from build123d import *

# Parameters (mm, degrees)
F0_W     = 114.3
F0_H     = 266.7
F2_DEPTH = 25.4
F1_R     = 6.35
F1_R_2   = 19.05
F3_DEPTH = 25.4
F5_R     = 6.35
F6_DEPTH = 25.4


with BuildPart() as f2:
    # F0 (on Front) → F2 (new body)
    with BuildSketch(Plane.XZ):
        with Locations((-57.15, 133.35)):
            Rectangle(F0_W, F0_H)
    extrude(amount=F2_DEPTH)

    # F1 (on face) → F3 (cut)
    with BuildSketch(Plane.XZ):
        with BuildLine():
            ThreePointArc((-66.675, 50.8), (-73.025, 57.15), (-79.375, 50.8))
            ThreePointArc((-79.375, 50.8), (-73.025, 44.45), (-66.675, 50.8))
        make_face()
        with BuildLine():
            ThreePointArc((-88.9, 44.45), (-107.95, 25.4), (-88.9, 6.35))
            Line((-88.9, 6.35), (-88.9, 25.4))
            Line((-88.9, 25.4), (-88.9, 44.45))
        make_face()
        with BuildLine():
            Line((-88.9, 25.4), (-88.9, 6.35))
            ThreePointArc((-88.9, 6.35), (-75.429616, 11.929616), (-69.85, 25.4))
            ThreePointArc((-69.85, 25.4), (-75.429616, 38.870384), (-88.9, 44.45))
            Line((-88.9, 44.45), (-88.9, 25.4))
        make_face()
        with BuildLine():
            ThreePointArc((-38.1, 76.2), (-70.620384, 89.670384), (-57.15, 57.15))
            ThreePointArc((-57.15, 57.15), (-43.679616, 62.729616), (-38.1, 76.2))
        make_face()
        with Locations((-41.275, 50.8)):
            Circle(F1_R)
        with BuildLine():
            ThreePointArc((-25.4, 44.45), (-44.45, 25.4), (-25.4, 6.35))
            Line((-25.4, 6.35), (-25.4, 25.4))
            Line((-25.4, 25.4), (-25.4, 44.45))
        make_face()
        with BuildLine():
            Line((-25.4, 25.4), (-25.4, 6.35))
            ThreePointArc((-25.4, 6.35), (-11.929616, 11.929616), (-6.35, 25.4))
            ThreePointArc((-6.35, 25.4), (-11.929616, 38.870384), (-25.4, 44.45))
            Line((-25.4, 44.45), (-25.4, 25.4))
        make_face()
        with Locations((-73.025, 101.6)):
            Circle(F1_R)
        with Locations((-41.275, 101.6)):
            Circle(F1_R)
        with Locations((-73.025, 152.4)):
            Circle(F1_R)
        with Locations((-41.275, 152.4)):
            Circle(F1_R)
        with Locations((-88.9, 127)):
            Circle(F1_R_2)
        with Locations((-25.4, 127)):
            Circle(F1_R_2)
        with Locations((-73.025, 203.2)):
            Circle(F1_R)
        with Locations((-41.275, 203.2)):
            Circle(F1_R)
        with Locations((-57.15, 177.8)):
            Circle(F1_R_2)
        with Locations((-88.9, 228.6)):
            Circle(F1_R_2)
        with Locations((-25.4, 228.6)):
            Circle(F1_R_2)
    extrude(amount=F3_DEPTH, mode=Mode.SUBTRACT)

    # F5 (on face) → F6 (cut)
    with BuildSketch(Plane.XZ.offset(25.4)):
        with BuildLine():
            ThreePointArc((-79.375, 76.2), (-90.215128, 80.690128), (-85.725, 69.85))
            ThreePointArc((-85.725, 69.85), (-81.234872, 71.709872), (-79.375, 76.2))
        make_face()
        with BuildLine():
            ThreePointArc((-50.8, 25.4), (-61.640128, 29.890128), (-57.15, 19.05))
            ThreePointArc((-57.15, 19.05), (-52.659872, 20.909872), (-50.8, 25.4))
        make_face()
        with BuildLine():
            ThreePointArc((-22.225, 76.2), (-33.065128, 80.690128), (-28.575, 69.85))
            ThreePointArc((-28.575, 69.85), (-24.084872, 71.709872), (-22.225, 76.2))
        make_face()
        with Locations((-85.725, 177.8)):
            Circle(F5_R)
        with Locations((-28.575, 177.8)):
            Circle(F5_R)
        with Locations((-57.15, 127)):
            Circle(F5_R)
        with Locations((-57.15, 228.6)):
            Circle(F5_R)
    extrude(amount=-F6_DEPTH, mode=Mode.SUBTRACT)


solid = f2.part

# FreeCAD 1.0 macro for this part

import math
import FreeCAD as App
import Part
import Sketcher
from FreeCAD import Vector
Q = App.Units.Quantity

doc = App.newDocument("Part")
body = doc.addObject("PartDesign::Body", "Body")

sketch1 = body.newObject("Sketcher::SketchObject", "Sketch")
sketch1.AttachmentSupport = (doc.getObject("XZ_Plane"), [""])
sketch1.MapMode = "FlatFace"
sketch1.addGeometry(Part.LineSegment(Vector(-114.3, 266.7, 0), Vector(-114.3, 0, 0)), False)
sketch1.addGeometry(Part.LineSegment(Vector(-114.3, 0, 0), Vector(0, 0, 0)), False)
sketch1.addGeometry(Part.LineSegment(Vector(0, 0, 0), Vector(0, 266.7, 0)), False)
sketch1.addGeometry(Part.LineSegment(Vector(0, 266.7, 0), Vector(-114.3, 266.7, 0)), False)
sketch1.addConstraint(Sketcher.Constraint("Coincident", 0, 2, 1, 1))
sketch1.addConstraint(Sketcher.Constraint("Coincident", 1, 2, 2, 1))
sketch1.addConstraint(Sketcher.Constraint("Coincident", 2, 2, 3, 1))
sketch1.addConstraint(Sketcher.Constraint("Coincident", 3, 2, 0, 1))
sketch1.addConstraint(Sketcher.Constraint("Vertical", 0))
sketch1.addConstraint(Sketcher.Constraint("Horizontal", 1))
sketch1.addConstraint(Sketcher.Constraint("Vertical", 2))
sketch1.addConstraint(Sketcher.Constraint("Horizontal", 3))
sketch1.addConstraint(Sketcher.Constraint("Coincident", 1, 2, -1, 1))
sketch1.addConstraint(Sketcher.Constraint("DistanceX", 1, 1, 1, 2, Q("4.5 in")))
sketch1.addConstraint(Sketcher.Constraint("DistanceY", 0, 2, 0, 1, Q("10.5 in")))
pad1 = body.newObject("PartDesign::Pad", "Pad")
pad1.Profile = sketch1
pad1.Length = Q("1 in")

sketch2 = body.newObject("Sketcher::SketchObject", "Sketch001")
sketch2.AttachmentSupport = (doc.getObject("XZ_Plane"), [""])
sketch2.MapMode = "FlatFace"
sketch2.addGeometry(Part.Circle(Vector(-73.025, 50.8, 0), Vector(0, 0, 1), 6.35), False)
sketch2.addGeometry(Part.ArcOfCircle(Part.Circle(Vector(-88.9, 25.4, 0), Vector(0, 0, 1), 19.05), math.radians(90), math.radians(270)), False)
sketch2.addGeometry(Part.ArcOfCircle(Part.Circle(Vector(-88.900001, 25.400001, 0), Vector(0, 0, 1), 19.050001), math.radians(-89.999998), math.radians(-0.000002)), False)
sketch2.addGeometry(Part.ArcOfCircle(Part.Circle(Vector(-88.900001, 25.399999, 0), Vector(0, 0, 1), 19.050001), math.radians(0.000002), math.radians(89.999998)), False)
sketch2.addGeometry(Part.ArcOfCircle(Part.Circle(Vector(-57.15, 76.2, 0), Vector(0, 0, 1), 19.05), math.radians(0), math.radians(270)), False)
sketch2.addGeometry(Part.ArcOfCircle(Part.Circle(Vector(-57.150001, 76.200001, 0), Vector(0, 0, 1), 19.050001), math.radians(-89.999998), math.radians(-0.000002)), False)
sketch2.addGeometry(Part.Circle(Vector(-41.275, 50.8, 0), Vector(0, 0, 1), 6.35), False)
sketch2.addGeometry(Part.ArcOfCircle(Part.Circle(Vector(-25.4, 25.4, 0), Vector(0, 0, 1), 19.05), math.radians(90), math.radians(270)), False)
sketch2.addGeometry(Part.ArcOfCircle(Part.Circle(Vector(-25.400001, 25.400001, 0), Vector(0, 0, 1), 19.050001), math.radians(-89.999998), math.radians(-0.000002)), False)
sketch2.addGeometry(Part.ArcOfCircle(Part.Circle(Vector(-25.400001, 25.399999, 0), Vector(0, 0, 1), 19.050001), math.radians(0.000002), math.radians(89.999998)), False)
sketch2.addGeometry(Part.Circle(Vector(-73.025, 101.6, 0), Vector(0, 0, 1), 6.35), False)
sketch2.addGeometry(Part.Circle(Vector(-41.275, 101.6, 0), Vector(0, 0, 1), 6.35), False)
sketch2.addGeometry(Part.Circle(Vector(-73.025, 152.4, 0), Vector(0, 0, 1), 6.35), False)
sketch2.addGeometry(Part.Circle(Vector(-41.275, 152.4, 0), Vector(0, 0, 1), 6.35), False)
sketch2.addGeometry(Part.Circle(Vector(-88.9, 127, 0), Vector(0, 0, 1), 19.05), False)
sketch2.addGeometry(Part.Circle(Vector(-25.4, 127, 0), Vector(0, 0, 1), 19.05), False)
sketch2.addGeometry(Part.Circle(Vector(-73.025, 203.2, 0), Vector(0, 0, 1), 6.35), False)
sketch2.addGeometry(Part.Circle(Vector(-41.275, 203.2, 0), Vector(0, 0, 1), 6.35), False)
sketch2.addGeometry(Part.Circle(Vector(-57.15, 177.8, 0), Vector(0, 0, 1), 19.05), False)
sketch2.addGeometry(Part.Circle(Vector(-88.9, 228.6, 0), Vector(0, 0, 1), 19.05), False)
sketch2.addGeometry(Part.Circle(Vector(-25.4, 228.6, 0), Vector(0, 0, 1), 19.05), False)
sketch2.addConstraint(Sketcher.Constraint("Tangent", 1, 2, 2, 1))
sketch2.addConstraint(Sketcher.Constraint("Tangent", 2, 2, 3, 1))
sketch2.addConstraint(Sketcher.Constraint("Tangent", 3, 2, 1, 1))
sketch2.addConstraint(Sketcher.Constraint("Tangent", 4, 1, 5, 2))
sketch2.addConstraint(Sketcher.Constraint("Coincident", 5, 1, 4, 2))
sketch2.addConstraint(Sketcher.Constraint("Tangent", 7, 2, 8, 1))
sketch2.addConstraint(Sketcher.Constraint("Tangent", 8, 2, 9, 1))
sketch2.addConstraint(Sketcher.Constraint("Tangent", 9, 2, 7, 1))
sketch2.addConstraint(Sketcher.Constraint("Equal", 3, 4))
sketch2.addConstraint(Sketcher.Constraint("Equal", 0, 6))
sketch2.addConstraint(Sketcher.Constraint("Equal", 5, 7))
sketch2.addConstraint(Sketcher.Constraint("Equal", 6, 10))
sketch2.addConstraint(Sketcher.Constraint("Equal", 10, 11))
sketch2.addConstraint(Sketcher.Constraint("Equal", 11, 12))
sketch2.addConstraint(Sketcher.Constraint("Equal", 12, 13))
sketch2.addConstraint(Sketcher.Constraint("Equal", 9, 14))
sketch2.addConstraint(Sketcher.Constraint("Equal", 14, 15))
sketch2.addConstraint(Sketcher.Constraint("Equal", 13, 16))
sketch2.addConstraint(Sketcher.Constraint("Equal", 16, 17))
sketch2.addConstraint(Sketcher.Constraint("Equal", 15, 18))
sketch2.addConstraint(Sketcher.Constraint("Equal", 18, 19))
sketch2.addConstraint(Sketcher.Constraint("Equal", 19, 20))
sketch2.addConstraint(Sketcher.Constraint("Horizontal", 0, 3, 6, 3))
sketch2.addConstraint(Sketcher.Constraint("Horizontal", 3, 3, 7, 3))
sketch2.addConstraint(Sketcher.Constraint("Horizontal", 10, 3, 11, 3))
sketch2.addConstraint(Sketcher.Constraint("Horizontal", 12, 3, 13, 3))
sketch2.addConstraint(Sketcher.Constraint("Horizontal", 14, 3, 15, 3))
sketch2.addConstraint(Sketcher.Constraint("Horizontal", 16, 3, 17, 3))
sketch2.addConstraint(Sketcher.Constraint("Horizontal", 19, 3, 20, 3))
sketch2.addConstraint(Sketcher.Constraint("Horizontal", 9, 3, 2, 2))
sketch2.addConstraint(Sketcher.Constraint("Horizontal", 5, 3, 4, 1))
sketch2.addConstraint(Sketcher.Constraint("Horizontal", 2, 2, 8, 2))
sketch2.addConstraint(Sketcher.Constraint("Vertical", 0, 3, 10, 3))
sketch2.addConstraint(Sketcher.Constraint("Vertical", 6, 3, 11, 3))
sketch2.addConstraint(Sketcher.Constraint("Vertical", 10, 3, 12, 3))
sketch2.addConstraint(Sketcher.Constraint("Vertical", 11, 3, 13, 3))
sketch2.addConstraint(Sketcher.Constraint("Vertical", 3, 3, 14, 3))
sketch2.addConstraint(Sketcher.Constraint("Vertical", 9, 3, 15, 3))
sketch2.addConstraint(Sketcher.Constraint("Vertical", 12, 3, 16, 3))
sketch2.addConstraint(Sketcher.Constraint("Vertical", 13, 3, 17, 3))
sketch2.addConstraint(Sketcher.Constraint("Vertical", 5, 3, 18, 3))
sketch2.addConstraint(Sketcher.Constraint("Vertical", 14, 3, 19, 3))
sketch2.addConstraint(Sketcher.Constraint("Vertical", 15, 3, 20, 3))
sketch2.addConstraint(Sketcher.Constraint("Vertical", 19, 3, 1, 2))
sketch2.addConstraint(Sketcher.Constraint("Vertical", 1, 2, 3, 2))
sketch2.addConstraint(Sketcher.Constraint("Vertical", 18, 3, 5, 1))
sketch2.addConstraint(Sketcher.Constraint("Vertical", 20, 3, 7, 2))
sketch2.addConstraint(Sketcher.Constraint("Vertical", 7, 2, 9, 2))
sketch2.addConstraint(Sketcher.Constraint("Diameter", 0, Q("0.5 in")))
sketch2.addConstraint(Sketcher.Constraint("Diameter", 14, Q("1.5 in")))
sketch2.addConstraint(Sketcher.Constraint("DistanceY", -1, 1, 0, 3, Q("2 in")))
sketch2.addConstraint(Sketcher.Constraint("DistanceY", -1, 1, 1, 3, Q("1 in")))
sketch2.addConstraint(Sketcher.Constraint("DistanceY", -1, 1, 4, 3, Q("3 in")))
sketch2.addConstraint(Sketcher.Constraint("DistanceX", 7, 3, -1, 1, Q("1 in")))
sketch2.addConstraint(Sketcher.Constraint("DistanceY", -1, 1, 10, 3, Q("4 in")))
sketch2.addConstraint(Sketcher.Constraint("DistanceY", -1, 1, 12, 3, Q("6 in")))
sketch2.addConstraint(Sketcher.Constraint("DistanceY", -1, 1, 14, 3, Q("5 in")))
sketch2.addConstraint(Sketcher.Constraint("DistanceY", -1, 1, 16, 3, Q("8 in")))
sketch2.addConstraint(Sketcher.Constraint("DistanceY", -1, 1, 18, 3, Q("7 in")))
sketch2.addConstraint(Sketcher.Constraint("DistanceY", -1, 1, 19, 3, Q("9 in")))
sketch2.addConstraint(Sketcher.Constraint("DistanceX", 1, 3, -1, 1, Q("3.5 in")))
sketch2.addConstraint(Sketcher.Constraint("DistanceX", 4, 1, -1, 1, Q("1.5 in")))
sketch2.addConstraint(Sketcher.Constraint("DistanceX", 0, 3, 6, 3, Q("1.25 in")))
sketch2.addConstraint(Sketcher.Constraint("DistanceX", 0, 3, -1, 1, Q("2.875 in")))
pocket1 = body.newObject("PartDesign::Pocket", "Pocket")
pocket1.Profile = sketch2
pocket1.Length = Q("1 in")
pocket1.Reversed = True

sketch3 = body.newObject("Sketcher::SketchObject", "Sketch002")
sketch3.AttachmentSupport = (doc.getObject("XZ_Plane"), [""])
sketch3.MapMode = "FlatFace"
sketch3.AttachmentOffset = App.Placement(Vector(0, 0, 1 * 25.4), App.Rotation())
sketch3.addGeometry(Part.ArcOfCircle(Part.Circle(Vector(-85.725, 76.2, 0), Vector(0, 0, 1), 6.35), math.radians(0), math.radians(270)), False)
sketch3.addGeometry(Part.ArcOfCircle(Part.Circle(Vector(-85.725, 76.2, 0), Vector(0, 0, 1), 6.35), math.radians(-89.999998), math.radians(-0.000002)), False)
sketch3.addGeometry(Part.ArcOfCircle(Part.Circle(Vector(-57.15, 25.4, 0), Vector(0, 0, 1), 6.35), math.radians(0), math.radians(270)), False)
sketch3.addGeometry(Part.ArcOfCircle(Part.Circle(Vector(-57.15, 25.4, 0), Vector(0, 0, 1), 6.35), math.radians(-89.999998), math.radians(-0.000002)), False)
sketch3.addGeometry(Part.ArcOfCircle(Part.Circle(Vector(-28.575, 76.2, 0), Vector(0, 0, 1), 6.35), math.radians(0), math.radians(270)), False)
sketch3.addGeometry(Part.ArcOfCircle(Part.Circle(Vector(-28.575, 76.2, 0), Vector(0, 0, 1), 6.35), math.radians(-89.999998), math.radians(-0.000002)), False)
sketch3.addGeometry(Part.Circle(Vector(-85.725, 177.8, 0), Vector(0, 0, 1), 6.35), False)
sketch3.addGeometry(Part.Circle(Vector(-28.575, 177.8, 0), Vector(0, 0, 1), 6.35), False)
sketch3.addGeometry(Part.Circle(Vector(-57.15, 127, 0), Vector(0, 0, 1), 6.35), False)
sketch3.addGeometry(Part.Circle(Vector(-57.15, 228.6, 0), Vector(0, 0, 1), 6.35), False)
sketch3.addConstraint(Sketcher.Constraint("Tangent", 0, 1, 1, 2))
sketch3.addConstraint(Sketcher.Constraint("Coincident", 1, 1, 0, 2))
sketch3.addConstraint(Sketcher.Constraint("Tangent", 2, 1, 3, 2))
sketch3.addConstraint(Sketcher.Constraint("Coincident", 3, 1, 2, 2))
sketch3.addConstraint(Sketcher.Constraint("Tangent", 4, 1, 5, 2))
sketch3.addConstraint(Sketcher.Constraint("Coincident", 5, 1, 4, 2))
sketch3.addConstraint(Sketcher.Constraint("Equal", 1, 2))
sketch3.addConstraint(Sketcher.Constraint("Equal", 3, 4))
sketch3.addConstraint(Sketcher.Constraint("Equal", 5, 6))
sketch3.addConstraint(Sketcher.Constraint("Equal", 6, 7))
sketch3.addConstraint(Sketcher.Constraint("Equal", 7, 8))
sketch3.addConstraint(Sketcher.Constraint("Equal", 8, 9))
sketch3.addConstraint(Sketcher.Constraint("Horizontal", 1, 3, 4, 3))
sketch3.addConstraint(Sketcher.Constraint("Horizontal", 6, 3, 7, 3))
sketch3.addConstraint(Sketcher.Constraint("Horizontal", 5, 3, 0, 1))
sketch3.addConstraint(Sketcher.Constraint("Horizontal", 3, 3, 2, 1))
sketch3.addConstraint(Sketcher.Constraint("Horizontal", 0, 1, 4, 1))
sketch3.addConstraint(Sketcher.Constraint("Vertical", 1, 3, 6, 3))
sketch3.addConstraint(Sketcher.Constraint("Vertical", 5, 3, 7, 3))
sketch3.addConstraint(Sketcher.Constraint("Vertical", 3, 3, 8, 3))
sketch3.addConstraint(Sketcher.Constraint("Vertical", 8, 3, 9, 3))
sketch3.addConstraint(Sketcher.Constraint("Vertical", 6, 3, 1, 1))
sketch3.addConstraint(Sketcher.Constraint("Vertical", 9, 3, 3, 1))
sketch3.addConstraint(Sketcher.Constraint("Vertical", 7, 3, 5, 1))
sketch3.addConstraint(Sketcher.Constraint("Diameter", 6, Q("0.5 in")))
sketch3.addConstraint(Sketcher.Constraint("DistanceY", -1, 1, 0, 3, Q("3 in")))
sketch3.addConstraint(Sketcher.Constraint("DistanceY", -1, 1, 2, 3, Q("1 in")))
sketch3.addConstraint(Sketcher.Constraint("DistanceY", -1, 1, 6, 3, Q("7 in")))
sketch3.addConstraint(Sketcher.Constraint("DistanceY", -1, 1, 8, 3, Q("5 in")))
sketch3.addConstraint(Sketcher.Constraint("DistanceY", -1, 1, 9, 3, Q("9 in")))
sketch3.addConstraint(Sketcher.Constraint("DistanceX", 2, 1, -1, 1, Q("2 in")))
sketch3.addConstraint(Sketcher.Constraint("DistanceX", 0, 1, 5, 3, Q("2 in")))
sketch3.addConstraint(Sketcher.Constraint("DistanceX", 0, 3, -1, 1, Q("3.375 in")))
pocket2 = body.newObject("PartDesign::Pocket", "Pocket001")
pocket2.Profile = sketch3
pocket2.Length = Q("1 in")

doc.recompute()
